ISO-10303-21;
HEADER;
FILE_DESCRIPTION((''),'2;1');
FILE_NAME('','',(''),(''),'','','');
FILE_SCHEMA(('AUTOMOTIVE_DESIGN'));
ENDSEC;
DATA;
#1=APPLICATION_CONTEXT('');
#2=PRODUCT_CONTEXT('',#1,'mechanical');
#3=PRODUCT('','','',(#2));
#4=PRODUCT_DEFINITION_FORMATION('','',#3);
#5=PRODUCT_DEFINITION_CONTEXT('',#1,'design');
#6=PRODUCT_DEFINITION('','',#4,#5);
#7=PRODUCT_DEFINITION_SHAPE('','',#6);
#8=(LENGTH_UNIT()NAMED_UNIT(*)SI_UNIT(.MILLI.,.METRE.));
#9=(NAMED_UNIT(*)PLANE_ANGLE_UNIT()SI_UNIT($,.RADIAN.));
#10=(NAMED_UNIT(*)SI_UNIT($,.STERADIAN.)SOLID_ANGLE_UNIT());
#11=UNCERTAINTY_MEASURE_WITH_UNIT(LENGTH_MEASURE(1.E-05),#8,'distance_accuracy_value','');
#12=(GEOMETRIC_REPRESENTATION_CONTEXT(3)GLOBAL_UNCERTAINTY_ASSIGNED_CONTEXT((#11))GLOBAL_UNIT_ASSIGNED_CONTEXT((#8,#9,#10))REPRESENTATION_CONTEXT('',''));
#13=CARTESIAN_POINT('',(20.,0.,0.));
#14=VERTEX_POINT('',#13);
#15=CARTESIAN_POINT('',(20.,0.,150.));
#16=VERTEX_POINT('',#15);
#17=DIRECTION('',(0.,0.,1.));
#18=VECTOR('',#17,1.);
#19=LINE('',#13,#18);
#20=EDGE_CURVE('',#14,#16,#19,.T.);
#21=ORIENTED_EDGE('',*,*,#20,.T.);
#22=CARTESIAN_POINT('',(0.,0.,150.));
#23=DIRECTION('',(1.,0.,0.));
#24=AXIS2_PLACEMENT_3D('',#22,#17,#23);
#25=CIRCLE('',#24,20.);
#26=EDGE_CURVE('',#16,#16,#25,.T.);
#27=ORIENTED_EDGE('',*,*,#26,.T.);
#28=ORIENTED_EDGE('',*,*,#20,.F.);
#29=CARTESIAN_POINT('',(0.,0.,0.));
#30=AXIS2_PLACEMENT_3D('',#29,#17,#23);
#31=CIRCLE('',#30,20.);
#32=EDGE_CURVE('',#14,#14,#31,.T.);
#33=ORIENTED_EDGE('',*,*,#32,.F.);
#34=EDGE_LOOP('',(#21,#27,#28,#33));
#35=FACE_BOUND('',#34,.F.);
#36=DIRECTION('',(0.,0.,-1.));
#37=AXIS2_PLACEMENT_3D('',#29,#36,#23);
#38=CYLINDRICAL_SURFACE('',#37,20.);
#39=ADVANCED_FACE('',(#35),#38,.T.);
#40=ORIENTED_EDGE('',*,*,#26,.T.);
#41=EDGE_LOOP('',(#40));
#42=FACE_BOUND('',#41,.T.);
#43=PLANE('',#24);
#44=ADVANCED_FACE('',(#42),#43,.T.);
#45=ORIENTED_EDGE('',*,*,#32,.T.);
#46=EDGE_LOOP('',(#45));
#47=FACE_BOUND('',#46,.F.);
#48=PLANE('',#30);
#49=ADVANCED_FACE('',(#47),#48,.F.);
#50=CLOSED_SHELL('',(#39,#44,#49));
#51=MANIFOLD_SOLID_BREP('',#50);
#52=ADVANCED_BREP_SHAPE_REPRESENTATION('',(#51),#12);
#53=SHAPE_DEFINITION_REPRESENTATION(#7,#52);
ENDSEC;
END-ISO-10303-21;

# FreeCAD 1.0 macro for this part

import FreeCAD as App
import Part
import Sketcher
from FreeCAD import Vector

doc = App.newDocument("Part")
body = doc.addObject("PartDesign::Body", "Body")

sketch1 = body.newObject("Sketcher::SketchObject", "Sketch")
sketch1.AttachmentSupport = (doc.getObject("XY_Plane"), [""])
sketch1.MapMode = "FlatFace"
sketch1.addGeometry(Part.Circle(Vector(0, 0, 0), Vector(0, 0, 1), 20), False)
sketch1.addConstraint(Sketcher.Constraint("Coincident", 0, 3, -1, 1))
sketch1.addConstraint(Sketcher.Constraint("Diameter", 0, 40.0))
pad1 = body.newObject("PartDesign::Pad", "Pad")
pad1.Profile = sketch1
pad1.Length = 150

doc.recompute()
